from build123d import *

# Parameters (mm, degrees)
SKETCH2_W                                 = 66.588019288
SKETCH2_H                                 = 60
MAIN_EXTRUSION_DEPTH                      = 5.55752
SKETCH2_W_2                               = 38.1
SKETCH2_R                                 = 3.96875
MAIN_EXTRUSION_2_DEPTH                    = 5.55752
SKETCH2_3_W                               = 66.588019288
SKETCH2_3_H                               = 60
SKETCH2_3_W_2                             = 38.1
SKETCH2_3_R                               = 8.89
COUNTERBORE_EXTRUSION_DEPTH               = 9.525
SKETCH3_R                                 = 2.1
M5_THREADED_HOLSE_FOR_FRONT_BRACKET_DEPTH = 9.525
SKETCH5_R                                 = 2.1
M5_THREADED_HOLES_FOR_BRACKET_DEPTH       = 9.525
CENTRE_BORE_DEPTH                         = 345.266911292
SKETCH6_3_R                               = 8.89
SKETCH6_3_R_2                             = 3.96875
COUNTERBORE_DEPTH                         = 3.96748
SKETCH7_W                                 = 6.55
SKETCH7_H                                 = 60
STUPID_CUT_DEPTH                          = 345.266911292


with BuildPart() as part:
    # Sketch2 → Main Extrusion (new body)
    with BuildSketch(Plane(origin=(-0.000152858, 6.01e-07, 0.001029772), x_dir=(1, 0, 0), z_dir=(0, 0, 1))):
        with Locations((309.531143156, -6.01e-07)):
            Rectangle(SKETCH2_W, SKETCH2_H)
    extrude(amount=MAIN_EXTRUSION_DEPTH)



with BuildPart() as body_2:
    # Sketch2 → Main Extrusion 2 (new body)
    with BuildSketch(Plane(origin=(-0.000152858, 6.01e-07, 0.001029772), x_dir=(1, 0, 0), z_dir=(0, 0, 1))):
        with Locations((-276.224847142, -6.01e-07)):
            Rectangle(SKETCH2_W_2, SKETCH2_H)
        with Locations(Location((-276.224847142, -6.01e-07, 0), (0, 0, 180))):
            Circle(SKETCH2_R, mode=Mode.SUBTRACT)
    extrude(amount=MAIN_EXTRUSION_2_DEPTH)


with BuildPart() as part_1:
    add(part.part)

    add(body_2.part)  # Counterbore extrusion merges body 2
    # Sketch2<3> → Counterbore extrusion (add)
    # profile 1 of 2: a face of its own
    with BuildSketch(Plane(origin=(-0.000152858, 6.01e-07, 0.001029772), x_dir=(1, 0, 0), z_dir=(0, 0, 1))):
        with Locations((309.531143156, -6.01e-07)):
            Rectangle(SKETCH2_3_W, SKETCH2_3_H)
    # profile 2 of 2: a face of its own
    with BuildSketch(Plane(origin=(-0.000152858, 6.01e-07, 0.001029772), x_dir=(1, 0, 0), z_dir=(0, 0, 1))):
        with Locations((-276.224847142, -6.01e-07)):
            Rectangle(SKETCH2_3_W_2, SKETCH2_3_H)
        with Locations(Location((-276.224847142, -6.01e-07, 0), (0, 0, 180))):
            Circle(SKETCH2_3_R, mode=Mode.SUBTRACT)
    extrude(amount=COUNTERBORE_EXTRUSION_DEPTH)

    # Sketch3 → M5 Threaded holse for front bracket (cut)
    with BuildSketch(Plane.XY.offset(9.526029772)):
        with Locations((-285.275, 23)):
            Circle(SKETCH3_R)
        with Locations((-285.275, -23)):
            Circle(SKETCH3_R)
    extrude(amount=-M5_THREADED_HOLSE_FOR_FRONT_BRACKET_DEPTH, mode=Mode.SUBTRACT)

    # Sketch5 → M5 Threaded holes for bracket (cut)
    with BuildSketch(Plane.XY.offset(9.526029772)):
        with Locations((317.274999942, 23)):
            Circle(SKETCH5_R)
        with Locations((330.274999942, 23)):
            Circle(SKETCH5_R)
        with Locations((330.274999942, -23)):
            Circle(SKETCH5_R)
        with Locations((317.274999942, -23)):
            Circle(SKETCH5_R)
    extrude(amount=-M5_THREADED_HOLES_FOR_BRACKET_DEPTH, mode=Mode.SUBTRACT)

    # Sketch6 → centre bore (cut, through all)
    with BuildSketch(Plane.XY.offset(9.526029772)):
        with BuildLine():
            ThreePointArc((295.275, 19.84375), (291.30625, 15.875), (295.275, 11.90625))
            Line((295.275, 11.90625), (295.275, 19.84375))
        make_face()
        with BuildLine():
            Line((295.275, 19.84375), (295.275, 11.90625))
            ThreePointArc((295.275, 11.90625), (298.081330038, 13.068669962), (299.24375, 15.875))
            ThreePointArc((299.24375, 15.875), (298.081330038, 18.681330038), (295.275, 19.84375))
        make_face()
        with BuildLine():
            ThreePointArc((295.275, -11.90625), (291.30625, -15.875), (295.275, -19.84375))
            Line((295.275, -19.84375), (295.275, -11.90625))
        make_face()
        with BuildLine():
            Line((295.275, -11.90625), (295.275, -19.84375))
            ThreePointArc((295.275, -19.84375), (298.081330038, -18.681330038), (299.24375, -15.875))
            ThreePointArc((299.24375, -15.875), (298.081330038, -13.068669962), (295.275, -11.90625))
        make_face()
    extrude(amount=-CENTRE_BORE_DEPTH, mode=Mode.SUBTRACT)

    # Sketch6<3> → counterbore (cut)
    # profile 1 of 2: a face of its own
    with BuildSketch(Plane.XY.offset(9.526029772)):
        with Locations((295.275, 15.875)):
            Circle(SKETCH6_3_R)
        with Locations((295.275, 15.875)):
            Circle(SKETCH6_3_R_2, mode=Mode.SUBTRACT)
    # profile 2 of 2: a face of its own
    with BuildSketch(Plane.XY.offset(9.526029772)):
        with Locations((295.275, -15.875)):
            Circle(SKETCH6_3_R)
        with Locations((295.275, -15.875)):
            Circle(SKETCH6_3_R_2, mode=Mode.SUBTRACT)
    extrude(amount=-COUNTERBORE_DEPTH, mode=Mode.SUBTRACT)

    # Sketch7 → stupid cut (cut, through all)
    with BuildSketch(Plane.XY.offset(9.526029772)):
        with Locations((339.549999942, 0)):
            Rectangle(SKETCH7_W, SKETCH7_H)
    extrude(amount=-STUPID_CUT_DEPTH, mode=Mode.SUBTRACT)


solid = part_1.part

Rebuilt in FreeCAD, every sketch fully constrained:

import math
import FreeCAD as App
import Part
import Sketcher

V = App.Vector
Q = App.Units.Quantity


def add_polygon(sketch, points):
    """Adds a closed chain of lines whose ends are joined by coincident constraints."""
    first, n = sketch.GeometryCount, len(points)
    for a, b in zip(points, points[1:] + points[:1]):
        sketch.addGeometry(Part.LineSegment(App.Vector(*a, 0), App.Vector(*b, 0)), False)
    for i in range(n):
        sketch.addConstraint(Sketcher.Constraint("Coincident", first + i, 2, first + (i + 1) % n, 1))

doc = App.newDocument("Part")
body = doc.addObject("PartDesign::Body", "Body")

sketch1 = doc.addObject("Sketcher::SketchObject", "Sketch")
body.addObject(sketch1)
sketch1.AttachmentSupport = (doc.XY_Plane, [""])
sketch1.MapMode = "FlatFace"
sketch1.AttachmentOffset = App.Placement(V(0, 0, 0.00103), App.Rotation())
add_polygon(sketch1, [(276.236981, 30), (276.236981, -30), (342.825, -30), (342.825, 30)])
sketch1.addConstraint([
    Sketcher.Constraint("Vertical", 0),
    Sketcher.Constraint("Horizontal", 1),
    Sketcher.Constraint("Vertical", 2),
    Sketcher.Constraint("Horizontal", 3),
    Sketcher.Constraint("DistanceY", 0, 2, 0, 1, Q("60 mm")),
    Sketcher.Constraint("DistanceX", 1, 1, 1, 2, Q("66.588019 mm")),
    Sketcher.Constraint("DistanceY", 0, 2, -1, 1, Q("30 mm")),
    Sketcher.Constraint("DistanceX", -1, 1, 1, 2, Q("342.825 mm")),
])
pad1 = doc.addObject("PartDesign::Pad", "Pad")
body.addObject(pad1)
pad1.Profile = sketch1
pad1.Length = Q("0.2188 in")
body2 = doc.addObject("PartDesign::Body", "Body001")

sketch2 = doc.addObject("Sketcher::SketchObject", "Sketch001")
body2.addObject(sketch2)
sketch2.AttachmentSupport = (doc.getObject("XY_Plane001"), [""])
sketch2.MapMode = "FlatFace"
sketch2.AttachmentOffset = App.Placement(V(0, 0, 0.00103), App.Rotation())
add_polygon(sketch2, [(-295.275, 30), (-295.275, -30), (-257.175, -30), (-257.175, 30)])
sketch2.addGeometry(Part.Circle(V(-276.225, 0, 0), V(0, 0, 1), 3.96875), False)
sketch2.addConstraint([
    Sketcher.Constraint("Vertical", 0),
    Sketcher.Constraint("Horizontal", 1),
    Sketcher.Constraint("Vertical", 2),
    Sketcher.Constraint("Horizontal", 3),
    Sketcher.Constraint("PointOnObject", 4, 3, -1),
    Sketcher.Constraint("Diameter", 4, Q("0.3125 in")),
    Sketcher.Constraint("DistanceX", 1, 1, 1, 2, Q("1.5 in")),
    Sketcher.Constraint("DistanceX", 0, 2, 4, 3, Q("0.75 in")),
    Sketcher.Constraint("DistanceX", 4, 3, -1, 1, Q("10.875 in")),
    Sketcher.Constraint("DistanceY", 0, 2, 0, 1, Q("60 mm")),
    Sketcher.Constraint("DistanceY", 0, 2, -1, 1, Q("30 mm")),
])
pad2 = doc.addObject("PartDesign::Pad", "Pad001")
body2.addObject(pad2)
pad2.Profile = sketch2
pad2.Length = Q("0.2188 in")
body.AllowCompound = True
doc.recompute()

boolean = doc.addObject("PartDesign::Boolean", "Boolean")
body.addObject(boolean)
boolean.Type = "Fuse"
boolean.addObjects([body2])

sketch3 = doc.addObject("Sketcher::SketchObject", "Sketch002")
body.addObject(sketch3)
sketch3.AttachmentSupport = (doc.XY_Plane, [""])
sketch3.MapMode = "FlatFace"
sketch3.AttachmentOffset = App.Placement(V(0, 0, 0.00103), App.Rotation())
add_polygon(sketch3, [(276.236981, 30), (276.236981, -30), (342.825, -30), (342.825, 30)])
add_polygon(sketch3, [(-295.275, 30), (-295.275, -30), (-257.175, -30), (-257.175, 30)])
sketch3.addGeometry(Part.Circle(V(-276.225, 0, 0), V(0, 0, 1), 8.89), False)
sketch3.addConstraint([
    Sketcher.Constraint("Vertical", 0),
    Sketcher.Constraint("Horizontal", 1),
    Sketcher.Constraint("Vertical", 2),
    Sketcher.Constraint("Horizontal", 3),
    Sketcher.Constraint("Vertical", 4),
    Sketcher.Constraint("Horizontal", 5),
    Sketcher.Constraint("Vertical", 6),
    Sketcher.Constraint("Horizontal", 7),
    Sketcher.Constraint("PointOnObject", 8, 3, -1),
    Sketcher.Constraint("Horizontal", 1, 2, 4, 2),
    Sketcher.Constraint("Horizontal", 3, 2, 6, 2),
    Sketcher.Constraint("Diameter", 8, Q("0.7 in")),
    Sketcher.Constraint("DistanceX", 5, 1, 5, 2, Q("1.5 in")),
    Sketcher.Constraint("DistanceX", 4, 2, 8, 3, Q("0.75 in")),
    Sketcher.Constraint("DistanceX", 8, 3, -1, 1, Q("10.875 in")),
    Sketcher.Constraint("DistanceY", 0, 2, 0, 1, Q("60 mm")),
    Sketcher.Constraint("DistanceX", 1, 1, 1, 2, Q("66.588019 mm")),
    Sketcher.Constraint("DistanceY", 0, 2, -1, 1, Q("30 mm")),
    Sketcher.Constraint("DistanceX", -1, 1, 1, 2, Q("342.825 mm")),
])
pad3 = doc.addObject("PartDesign::Pad", "Pad002")
body.addObject(pad3)
pad3.Profile = sketch3
pad3.Length = Q("0.375 in")

sketch4 = doc.addObject("Sketcher::SketchObject", "Sketch003")
body.addObject(sketch4)
sketch4.AttachmentSupport = (doc.XY_Plane, [""])
sketch4.MapMode = "FlatFace"
sketch4.AttachmentOffset = App.Placement(V(0, 0, 9.52603), App.Rotation())
sketch4.addGeometry([
    Part.Circle(V(-285.275, 23, 0), V(0, 0, 1), 2.1),
    Part.Circle(V(-285.275, -23, 0), V(0, 0, 1), 2.1),
], False)
sketch4.addConstraint([
    Sketcher.Constraint("Equal", 0, 1),
    Sketcher.Constraint("Symmetric", 0, 3, 1, 3, -1),
    Sketcher.Constraint("Diameter", 0, Q("4.2 mm")),
    Sketcher.Constraint("DistanceX", 0, 3, -1, 1, Q("285.275 mm")),
    Sketcher.Constraint("DistanceY", -1, 1, 0, 3, Q("23 mm")),
])
pocket1 = doc.addObject("PartDesign::Pocket", "Pocket")
body.addObject(pocket1)
pocket1.Profile = sketch4
pocket1.Length = Q("0.375 in")

sketch5 = doc.addObject("Sketcher::SketchObject", "Sketch004")
body.addObject(sketch5)
sketch5.AttachmentSupport = (doc.XY_Plane, [""])
sketch5.MapMode = "FlatFace"
sketch5.AttachmentOffset = App.Placement(V(0, 0, 9.52603), App.Rotation())
sketch5.addGeometry([
    Part.Circle(V(317.275, 23, 0), V(0, 0, 1), 2.1),
    Part.Circle(V(330.275, 23, 0), V(0, 0, 1), 2.1),
    Part.Circle(V(330.275, -23, 0), V(0, 0, 1), 2.1),
    Part.Circle(V(317.275, -23, 0), V(0, 0, 1), 2.1),
], False)
sketch5.addConstraint([
    Sketcher.Constraint("Equal", 0, 1),
    Sketcher.Constraint("Equal", 1, 2),
    Sketcher.Constraint("Equal", 2, 3),
    Sketcher.Constraint("Symmetric", 1, 3, 2, 3, -1),
    Sketcher.Constraint("Symmetric", 0, 3, 3, 3, -1),
    Sketcher.Constraint("Horizontal", 0, 3, 1, 3),
    Sketcher.Constraint("Diameter", 0, Q("4.2 mm")),
    Sketcher.Constraint("DistanceX", -1, 1, 0, 3, Q("317.275 mm")),
    Sketcher.Constraint("DistanceY", -1, 1, 0, 3, Q("23 mm")),
    Sketcher.Constraint("DistanceX", -1, 1, 1, 3, Q("330.275 mm")),
])
pocket2 = doc.addObject("PartDesign::Pocket", "Pocket001")
body.addObject(pocket2)
pocket2.Profile = sketch5
pocket2.Length = Q("0.375 in")

sketch6 = doc.addObject("Sketcher::SketchObject", "Sketch005")
body.addObject(sketch6)
sketch6.AttachmentSupport = (doc.XY_Plane, [""])
sketch6.MapMode = "FlatFace"
sketch6.AttachmentOffset = App.Placement(V(0, 0, 9.52603), App.Rotation())
sketch6.addGeometry([
    Part.ArcOfCircle(Part.Circle(V(295.275, 15.875, 0), V(0, 0, 1), 3.96875), math.radians(90), math.radians(270)),
    Part.ArcOfCircle(Part.Circle(V(295.275, 15.875, 0), V(0, 0, 1), 3.96875), math.radians(-90), math.radians(0)),
    Part.ArcOfCircle(Part.Circle(V(295.275, 15.875, 0), V(0, 0, 1), 3.96875), math.radians(0), math.radians(90)),
    Part.ArcOfCircle(Part.Circle(V(295.275, -15.875, 0), V(0, 0, 1), 3.96875), math.radians(90), math.radians(270)),
    Part.ArcOfCircle(Part.Circle(V(295.275, -15.875, 0), V(0, 0, 1), 3.96875), math.radians(-90), math.radians(0)),
    Part.ArcOfCircle(Part.Circle(V(295.275, -15.875, 0), V(0, 0, 1), 3.96875), math.radians(0), math.radians(90)),
], False)
sketch6.addConstraint([
    Sketcher.Constraint("Tangent", 0, 2, 1, 1),
    Sketcher.Constraint("Tangent", 1, 2, 2, 1),
    Sketcher.Constraint("Tangent", 2, 2, 0, 1),
    Sketcher.Constraint("Tangent", 3, 2, 4, 1),
    Sketcher.Constraint("Tangent", 4, 2, 5, 1),
    Sketcher.Constraint("Tangent", 5, 2, 3, 1),
    Sketcher.Constraint("Equal", 2, 3),
    Sketcher.Constraint("Symmetric", 0, 3, 3, 3, -1),
    Sketcher.Constraint("Horizontal", 2, 3, 1, 2),
    Sketcher.Constraint("Horizontal", 5, 3, 4, 2),
    Sketcher.Constraint("Vertical", 5, 3, 0, 2),
    Sketcher.Constraint("Vertical", 0, 2, 2, 2),
    Sketcher.Constraint("Vertical", 2, 2, 3, 2),
    Sketcher.Constraint("Vertical", 3, 2, 5, 2),
    Sketcher.Constraint("Radius", 0, Q("0.15625 in")),
    Sketcher.Constraint("DistanceY", 3, 3, 1, 3, Q("1.25 in")),
    Sketcher.Constraint("DistanceX", -1, 1, 0, 3, Q("11.625 in")),
])
pocket3 = doc.addObject("PartDesign::Pocket", "Pocket002")
body.addObject(pocket3)
pocket3.Profile = sketch6
pocket3.Type = "ThroughAll"

sketch7 = doc.addObject("Sketcher::SketchObject", "Sketch006")
body.addObject(sketch7)
sketch7.AttachmentSupport = (doc.XY_Plane, [""])
sketch7.MapMode = "FlatFace"
sketch7.AttachmentOffset = App.Placement(V(0, 0, 9.52603), App.Rotation())
sketch7.addGeometry([
    Part.Circle(V(295.275, 15.875, 0), V(0, 0, 1), 8.89),
    Part.Circle(V(295.275, 15.875, 0), V(0, 0, 1), 3.96875),
    Part.Circle(V(295.275, -15.875, 0), V(0, 0, 1), 8.89),
    Part.Circle(V(295.275, -15.875, 0), V(0, 0, 1), 3.96875),
], False)
sketch7.addConstraint([
    Sketcher.Constraint("Coincident", 1, 3, 0, 3),
    Sketcher.Constraint("Coincident", 3, 3, 2, 3),
    Sketcher.Constraint("Equal", 0, 2),
    Sketcher.Constraint("Equal", 1, 3),
    Sketcher.Constraint("Symmetric", 0, 3, 2, 3, -1),
    Sketcher.Constraint("Diameter", 0, Q("0.7 in")),
    Sketcher.Constraint("Diameter", 1, Q("0.3125 in")),
    Sketcher.Constraint("DistanceY", 2, 3, 0, 3, Q("1.25 in")),
    Sketcher.Constraint("DistanceX", -1, 1, 0, 3, Q("11.625 in")),
])
pocket4 = doc.addObject("PartDesign::Pocket", "Pocket003")
body.addObject(pocket4)
pocket4.Profile = sketch7
pocket4.Length = Q("0.1562 in")

sketch8 = doc.addObject("Sketcher::SketchObject", "Sketch007")
body.addObject(sketch8)
sketch8.AttachmentSupport = (doc.XY_Plane, [""])
sketch8.MapMode = "FlatFace"
sketch8.AttachmentOffset = App.Placement(V(0, 0, 9.52603), App.Rotation())
add_polygon(sketch8, [(336.275, 30), (336.275, -30), (342.825, -30), (342.825, 30)])
sketch8.addConstraint([
    Sketcher.Constraint("Vertical", 0),
    Sketcher.Constraint("Horizontal", 1),
    Sketcher.Constraint("Vertical", 2),
    Sketcher.Constraint("Horizontal", 3),
    Sketcher.Constraint("DistanceX", 1, 1, 1, 2, Q("6.55 mm")),
    Sketcher.Constraint("DistanceY", 0, 2, 0, 1, Q("60 mm")),
    Sketcher.Constraint("DistanceX", -1, 1, 0, 2, Q("336.275 mm")),
    Sketcher.Constraint("DistanceY", 0, 2, -1, 1, Q("30 mm")),
])
pocket5 = doc.addObject("PartDesign::Pocket", "Pocket004")
body.addObject(pocket5)
pocket5.Profile = sketch8
pocket5.Type = "ThroughAll"

doc.recompute()
